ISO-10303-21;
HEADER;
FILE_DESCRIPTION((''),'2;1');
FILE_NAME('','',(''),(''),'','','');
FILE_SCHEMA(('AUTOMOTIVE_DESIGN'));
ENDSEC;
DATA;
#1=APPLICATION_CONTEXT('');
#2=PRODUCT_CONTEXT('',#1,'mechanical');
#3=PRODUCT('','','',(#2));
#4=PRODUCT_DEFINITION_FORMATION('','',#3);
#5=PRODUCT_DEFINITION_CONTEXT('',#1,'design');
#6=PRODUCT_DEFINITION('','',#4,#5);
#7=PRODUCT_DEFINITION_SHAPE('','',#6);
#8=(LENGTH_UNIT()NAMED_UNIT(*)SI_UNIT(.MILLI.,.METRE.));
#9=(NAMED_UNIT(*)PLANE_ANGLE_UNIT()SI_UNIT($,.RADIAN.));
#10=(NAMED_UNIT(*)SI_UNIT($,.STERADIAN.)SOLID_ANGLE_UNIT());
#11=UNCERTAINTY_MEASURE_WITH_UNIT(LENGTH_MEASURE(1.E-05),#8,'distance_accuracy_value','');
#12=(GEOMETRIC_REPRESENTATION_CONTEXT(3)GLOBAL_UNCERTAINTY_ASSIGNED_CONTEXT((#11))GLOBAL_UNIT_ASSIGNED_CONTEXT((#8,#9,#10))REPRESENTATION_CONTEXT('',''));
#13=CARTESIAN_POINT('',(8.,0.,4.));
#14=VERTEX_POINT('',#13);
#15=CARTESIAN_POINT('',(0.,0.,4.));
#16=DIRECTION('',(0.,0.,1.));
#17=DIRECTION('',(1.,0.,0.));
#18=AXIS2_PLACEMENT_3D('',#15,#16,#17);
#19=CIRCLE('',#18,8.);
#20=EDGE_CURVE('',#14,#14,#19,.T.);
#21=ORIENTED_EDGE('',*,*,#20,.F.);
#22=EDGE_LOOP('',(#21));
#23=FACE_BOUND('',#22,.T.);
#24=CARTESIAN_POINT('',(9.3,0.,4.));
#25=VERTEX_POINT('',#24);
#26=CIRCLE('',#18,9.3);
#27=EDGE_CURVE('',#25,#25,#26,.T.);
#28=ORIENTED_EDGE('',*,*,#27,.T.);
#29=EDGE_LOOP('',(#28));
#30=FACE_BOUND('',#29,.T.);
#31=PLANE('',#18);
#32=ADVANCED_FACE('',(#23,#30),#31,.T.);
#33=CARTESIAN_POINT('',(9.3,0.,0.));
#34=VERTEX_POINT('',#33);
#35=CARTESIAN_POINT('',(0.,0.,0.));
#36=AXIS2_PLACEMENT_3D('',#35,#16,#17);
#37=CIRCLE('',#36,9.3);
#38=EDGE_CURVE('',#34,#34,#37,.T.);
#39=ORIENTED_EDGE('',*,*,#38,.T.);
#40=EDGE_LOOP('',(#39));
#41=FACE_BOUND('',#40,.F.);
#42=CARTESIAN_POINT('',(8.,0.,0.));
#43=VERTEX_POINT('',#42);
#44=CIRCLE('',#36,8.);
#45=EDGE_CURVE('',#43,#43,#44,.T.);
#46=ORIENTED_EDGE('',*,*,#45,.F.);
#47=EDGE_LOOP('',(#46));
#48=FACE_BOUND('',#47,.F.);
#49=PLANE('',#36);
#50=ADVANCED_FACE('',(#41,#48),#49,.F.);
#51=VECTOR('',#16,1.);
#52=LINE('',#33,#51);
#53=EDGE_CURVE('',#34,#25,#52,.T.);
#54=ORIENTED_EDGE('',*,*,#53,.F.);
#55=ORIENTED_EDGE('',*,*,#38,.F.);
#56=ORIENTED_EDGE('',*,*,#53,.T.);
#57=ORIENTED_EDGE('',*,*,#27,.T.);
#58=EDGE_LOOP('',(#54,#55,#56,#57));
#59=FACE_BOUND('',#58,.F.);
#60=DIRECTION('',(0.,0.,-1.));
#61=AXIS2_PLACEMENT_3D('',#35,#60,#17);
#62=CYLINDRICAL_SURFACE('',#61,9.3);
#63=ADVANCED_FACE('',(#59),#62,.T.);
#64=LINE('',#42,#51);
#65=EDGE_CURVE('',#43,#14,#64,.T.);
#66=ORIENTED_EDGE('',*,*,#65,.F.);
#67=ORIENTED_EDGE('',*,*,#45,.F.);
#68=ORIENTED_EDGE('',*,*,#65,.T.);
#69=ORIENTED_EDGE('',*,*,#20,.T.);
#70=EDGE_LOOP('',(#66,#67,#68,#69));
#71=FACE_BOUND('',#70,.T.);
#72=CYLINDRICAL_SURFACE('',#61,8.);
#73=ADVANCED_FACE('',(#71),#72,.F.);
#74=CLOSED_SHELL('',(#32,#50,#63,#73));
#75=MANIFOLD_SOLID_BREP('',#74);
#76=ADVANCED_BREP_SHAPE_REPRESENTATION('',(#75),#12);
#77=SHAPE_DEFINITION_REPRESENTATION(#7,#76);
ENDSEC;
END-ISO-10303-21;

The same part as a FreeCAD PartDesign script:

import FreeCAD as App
import Part
import Sketcher
from FreeCAD import Vector
Q = App.Units.Quantity

doc = App.newDocument("Part")
params = doc.addObject("Spreadsheet::Sheet", "Params")
for row, (alias, value) in enumerate([
    ("sketch1_diameter", "16 mm"),
    ("sketch1_diameter2", "18.6 mm"),
    ("pad1_length", "4 mm"),
], start=1):
    params.set(f"A{row}", alias)
    params.set(f"B{row}", "=" + value)
    params.setAlias(f"B{row}", alias)

body = doc.addObject("PartDesign::Body", "Body")

# Sketch on XY plane
sketch1 = body.newObject("Sketcher::SketchObject", "Sketch")
sketch1.AttachmentSupport = (doc.getObject("XY_Plane"), [""])
sketch1.MapMode = "FlatFace"
sketch1.addGeometry(Part.Circle(Vector(0, 0, 0), Vector(0, 0, 1), 9.3), False)
sketch1.addGeometry(Part.Circle(Vector(0, 0, 0), Vector(0, 0, 1), 8), False)
sketch1.addConstraint(Sketcher.Constraint("Coincident", 0, 3, -1, 1))
sketch1.addConstraint(Sketcher.Constraint("Coincident", 1, 3, -1, 1))
sketch1.addConstraint(Sketcher.Constraint("Diameter", 1, Q("16 mm")))
sketch1.addConstraint(Sketcher.Constraint("Diameter", 0, Q("18.6 mm")))
sketch1.setExpression("Constraints[2]", "Params.sketch1_diameter")
sketch1.setExpression("Constraints[3]", "Params.sketch1_diameter2")
pad1 = body.newObject("PartDesign::Pad", "Pad")
pad1.Profile = sketch1
pad1.setExpression("Length", "Params.pad1_length")

doc.recompute()
